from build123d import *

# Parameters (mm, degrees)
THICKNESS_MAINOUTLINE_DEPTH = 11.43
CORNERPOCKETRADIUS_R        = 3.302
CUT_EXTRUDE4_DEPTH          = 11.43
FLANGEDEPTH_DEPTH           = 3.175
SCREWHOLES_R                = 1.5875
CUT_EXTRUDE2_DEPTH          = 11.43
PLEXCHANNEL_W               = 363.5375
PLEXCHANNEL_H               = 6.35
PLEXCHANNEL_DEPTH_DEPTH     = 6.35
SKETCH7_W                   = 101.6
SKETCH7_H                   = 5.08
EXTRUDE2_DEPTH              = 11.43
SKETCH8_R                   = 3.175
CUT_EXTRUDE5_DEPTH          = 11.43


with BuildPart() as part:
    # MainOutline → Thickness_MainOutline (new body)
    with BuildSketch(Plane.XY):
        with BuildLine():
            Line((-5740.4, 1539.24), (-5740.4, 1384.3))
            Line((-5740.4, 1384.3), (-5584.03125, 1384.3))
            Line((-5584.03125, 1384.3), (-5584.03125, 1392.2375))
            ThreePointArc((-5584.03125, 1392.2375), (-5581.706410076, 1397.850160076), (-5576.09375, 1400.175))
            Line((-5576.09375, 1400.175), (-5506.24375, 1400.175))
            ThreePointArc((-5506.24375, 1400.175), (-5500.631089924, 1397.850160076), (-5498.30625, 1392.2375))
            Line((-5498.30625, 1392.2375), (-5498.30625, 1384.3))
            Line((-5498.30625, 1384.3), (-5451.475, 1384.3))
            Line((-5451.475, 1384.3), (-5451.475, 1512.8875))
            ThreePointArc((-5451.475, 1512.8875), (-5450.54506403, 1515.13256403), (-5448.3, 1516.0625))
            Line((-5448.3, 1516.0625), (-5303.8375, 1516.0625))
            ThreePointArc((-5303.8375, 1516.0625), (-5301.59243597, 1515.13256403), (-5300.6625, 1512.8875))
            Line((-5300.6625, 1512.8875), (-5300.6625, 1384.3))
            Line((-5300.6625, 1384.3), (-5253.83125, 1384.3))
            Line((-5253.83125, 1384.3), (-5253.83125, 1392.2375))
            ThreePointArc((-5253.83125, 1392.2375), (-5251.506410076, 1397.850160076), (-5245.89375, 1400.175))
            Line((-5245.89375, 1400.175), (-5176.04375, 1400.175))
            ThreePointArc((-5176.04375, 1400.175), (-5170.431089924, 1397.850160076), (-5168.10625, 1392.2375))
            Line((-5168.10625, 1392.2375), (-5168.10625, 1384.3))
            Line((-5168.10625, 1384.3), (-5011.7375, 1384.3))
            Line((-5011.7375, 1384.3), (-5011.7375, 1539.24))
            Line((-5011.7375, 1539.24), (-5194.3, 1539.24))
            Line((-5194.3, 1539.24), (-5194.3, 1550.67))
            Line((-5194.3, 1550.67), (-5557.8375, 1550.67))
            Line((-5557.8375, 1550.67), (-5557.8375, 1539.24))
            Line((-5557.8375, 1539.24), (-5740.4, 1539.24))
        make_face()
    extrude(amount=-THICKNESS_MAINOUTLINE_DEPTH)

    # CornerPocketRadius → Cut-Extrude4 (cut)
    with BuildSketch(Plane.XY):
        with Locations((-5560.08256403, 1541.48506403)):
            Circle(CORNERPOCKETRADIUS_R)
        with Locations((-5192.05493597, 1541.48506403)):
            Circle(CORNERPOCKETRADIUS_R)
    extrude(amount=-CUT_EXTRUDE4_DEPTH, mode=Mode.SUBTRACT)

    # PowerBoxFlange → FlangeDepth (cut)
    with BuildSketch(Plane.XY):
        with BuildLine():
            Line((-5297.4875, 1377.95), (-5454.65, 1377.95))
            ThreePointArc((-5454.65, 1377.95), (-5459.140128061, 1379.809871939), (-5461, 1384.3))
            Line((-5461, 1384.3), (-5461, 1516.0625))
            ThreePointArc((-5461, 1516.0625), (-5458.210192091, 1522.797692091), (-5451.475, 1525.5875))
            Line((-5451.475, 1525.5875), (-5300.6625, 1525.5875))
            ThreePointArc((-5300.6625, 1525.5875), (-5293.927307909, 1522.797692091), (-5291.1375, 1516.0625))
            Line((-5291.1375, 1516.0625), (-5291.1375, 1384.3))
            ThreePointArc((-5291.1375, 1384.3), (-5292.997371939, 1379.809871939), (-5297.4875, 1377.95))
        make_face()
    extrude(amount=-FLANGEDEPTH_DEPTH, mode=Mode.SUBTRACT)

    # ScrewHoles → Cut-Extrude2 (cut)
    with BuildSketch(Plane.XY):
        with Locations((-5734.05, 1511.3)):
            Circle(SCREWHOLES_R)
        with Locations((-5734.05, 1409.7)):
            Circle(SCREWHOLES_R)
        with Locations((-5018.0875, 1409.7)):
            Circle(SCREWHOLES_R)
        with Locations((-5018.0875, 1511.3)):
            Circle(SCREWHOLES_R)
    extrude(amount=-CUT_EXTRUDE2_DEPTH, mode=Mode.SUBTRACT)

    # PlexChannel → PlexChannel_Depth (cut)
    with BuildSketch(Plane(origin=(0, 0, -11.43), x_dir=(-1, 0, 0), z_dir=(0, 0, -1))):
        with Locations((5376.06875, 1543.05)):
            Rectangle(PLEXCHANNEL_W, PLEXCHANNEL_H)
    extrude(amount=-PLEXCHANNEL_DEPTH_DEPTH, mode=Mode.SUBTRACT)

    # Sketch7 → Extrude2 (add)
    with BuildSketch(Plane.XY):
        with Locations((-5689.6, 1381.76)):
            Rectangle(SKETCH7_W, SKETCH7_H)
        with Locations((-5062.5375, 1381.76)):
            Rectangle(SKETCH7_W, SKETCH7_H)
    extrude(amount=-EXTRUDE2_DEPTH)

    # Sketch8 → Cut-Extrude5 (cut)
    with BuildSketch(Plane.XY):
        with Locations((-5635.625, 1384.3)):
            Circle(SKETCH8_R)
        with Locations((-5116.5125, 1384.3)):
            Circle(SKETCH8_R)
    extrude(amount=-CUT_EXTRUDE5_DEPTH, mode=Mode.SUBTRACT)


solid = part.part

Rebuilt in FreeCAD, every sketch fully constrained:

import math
import FreeCAD as App
import Part
import Sketcher

V = App.Vector
Q = App.Units.Quantity

doc = App.newDocument("Part")
body = doc.addObject("PartDesign::Body", "Body")

sketch1 = body.newObject("Sketcher::SketchObject", "Sketch")
sketch1.AttachmentSupport = (doc.getObject("XY_Plane"), [""])
sketch1.MapMode = "FlatFace"
sketch1.addGeometry([
    Part.LineSegment(V(-5740.4, 1539.2, 0), V(-5740.4, 1384.3, 0)),
    Part.LineSegment(V(-5740.4, 1384.3, 0), V(-5584, 1384.3, 0)),
    Part.LineSegment(V(-5584, 1384.3, 0), V(-5584, 1392.2, 0)),
    Part.ArcOfCircle(Part.Circle(V(-5576.1, 1392.2, 0), V(0, 0, 1), 7.9), math.radians(90), math.radians(180)),
    Part.LineSegment(V(-5576.1, 1400.2, 0), V(-5506.2, 1400.2, 0)),
    Part.ArcOfCircle(Part.Circle(V(-5506.2, 1392.2, 0), V(0, 0, 1), 7.9), math.radians(0), math.radians(90)),
    Part.LineSegment(V(-5498.3, 1392.2, 0), V(-5498.3, 1384.3, 0)),
    Part.LineSegment(V(-5498.3, 1384.3, 0), V(-5451.5, 1384.3, 0)),
    Part.LineSegment(V(-5451.5, 1384.3, 0), V(-5451.5, 1512.9, 0)),
    Part.ArcOfCircle(Part.Circle(V(-5448.3, 1512.9, 0), V(0, 0, 1), 3.2), math.radians(90), math.radians(180)),
    Part.LineSegment(V(-5448.3, 1516.1, 0), V(-5303.8, 1516.1, 0)),
    Part.ArcOfCircle(Part.Circle(V(-5303.8, 1512.9, 0), V(0, 0, 1), 3.2), math.radians(0), math.radians(90)),
    Part.LineSegment(V(-5300.7, 1512.9, 0), V(-5300.7, 1384.3, 0)),
    Part.LineSegment(V(-5300.7, 1384.3, 0), V(-5253.8, 1384.3, 0)),
    Part.LineSegment(V(-5253.8, 1384.3, 0), V(-5253.8, 1392.2, 0)),
    Part.ArcOfCircle(Part.Circle(V(-5245.9, 1392.2, 0), V(0, 0, 1), 7.9), math.radians(90), math.radians(180)),
    Part.LineSegment(V(-5245.9, 1400.2, 0), V(-5176, 1400.2, 0)),
    Part.ArcOfCircle(Part.Circle(V(-5176, 1392.2, 0), V(0, 0, 1), 7.9), math.radians(0), math.radians(90)),
    Part.LineSegment(V(-5168.1, 1392.2, 0), V(-5168.1, 1384.3, 0)),
    Part.LineSegment(V(-5168.1, 1384.3, 0), V(-5011.7, 1384.3, 0)),
    Part.LineSegment(V(-5011.7, 1384.3, 0), V(-5011.7, 1539.2, 0)),
    Part.LineSegment(V(-5011.7, 1539.2, 0), V(-5194.3, 1539.2, 0)),
    Part.LineSegment(V(-5194.3, 1539.2, 0), V(-5194.3, 1550.7, 0)),
    Part.LineSegment(V(-5194.3, 1550.7, 0), V(-5557.8, 1550.7, 0)),
    Part.LineSegment(V(-5557.8, 1550.7, 0), V(-5557.8, 1539.2, 0)),
    Part.LineSegment(V(-5557.8, 1539.2, 0), V(-5740.4, 1539.2, 0)),
], False)
sketch1.addConstraint([
    Sketcher.Constraint("Coincident", 0, 2, 1, 1),
    Sketcher.Constraint("Coincident", 1, 2, 2, 1),
    Sketcher.Constraint("Tangent", 2, 2, 3, 2),
    Sketcher.Constraint("Tangent", 3, 1, 4, 1),
    Sketcher.Constraint("Tangent", 4, 2, 5, 2),
    Sketcher.Constraint("Tangent", 5, 1, 6, 1),
    Sketcher.Constraint("Coincident", 6, 2, 7, 1),
    Sketcher.Constraint("Coincident", 7, 2, 8, 1),
    Sketcher.Constraint("Tangent", 8, 2, 9, 2),
    Sketcher.Constraint("Tangent", 9, 1, 10, 1),
    Sketcher.Constraint("Tangent", 10, 2, 11, 2),
    Sketcher.Constraint("Tangent", 11, 1, 12, 1),
    Sketcher.Constraint("Coincident", 12, 2, 13, 1),
    Sketcher.Constraint("Coincident", 13, 2, 14, 1),
    Sketcher.Constraint("Tangent", 14, 2, 15, 2),
    Sketcher.Constraint("Tangent", 15, 1, 16, 1),
    Sketcher.Constraint("Tangent", 16, 2, 17, 2),
    Sketcher.Constraint("Tangent", 17, 1, 18, 1),
    Sketcher.Constraint("Coincident", 18, 2, 19, 1),
    Sketcher.Constraint("Coincident", 19, 2, 20, 1),
    Sketcher.Constraint("Coincident", 20, 2, 21, 1),
    Sketcher.Constraint("Coincident", 21, 2, 22, 1),
    Sketcher.Constraint("Coincident", 22, 2, 23, 1),
    Sketcher.Constraint("Coincident", 23, 2, 24, 1),
    Sketcher.Constraint("Coincident", 24, 2, 25, 1),
    Sketcher.Constraint("Coincident", 25, 2, 0, 1),
    Sketcher.Constraint("Vertical", 0),
    Sketcher.Constraint("Horizontal", 1),
    Sketcher.Constraint("Vertical", 2),
    Sketcher.Constraint("Horizontal", 4),
    Sketcher.Constraint("Vertical", 6),
    Sketcher.Constraint("Horizontal", 7),
    Sketcher.Constraint("Vertical", 8),
    Sketcher.Constraint("Horizontal", 10),
    Sketcher.Constraint("Vertical", 12),
    Sketcher.Constraint("Horizontal", 13),
    Sketcher.Constraint("Vertical", 14),
    Sketcher.Constraint("Horizontal", 16),
    Sketcher.Constraint("Vertical", 18),
    Sketcher.Constraint("Horizontal", 19),
    Sketcher.Constraint("Vertical", 20),
    Sketcher.Constraint("Horizontal", 21),
    Sketcher.Constraint("Vertical", 22),
    Sketcher.Constraint("Horizontal", 23),
    Sketcher.Constraint("Vertical", 24),
    Sketcher.Constraint("Horizontal", 25),
    Sketcher.Constraint("Equal", 3, 5),
    Sketcher.Constraint("Equal", 9, 11),
    Sketcher.Constraint("Equal", 5, 15),
    Sketcher.Constraint("Equal", 15, 17),
    Sketcher.Constraint("Horizontal", 5, 3, 15, 3),
    Sketcher.Constraint("Horizontal", 1, 2, 6, 2),
    Sketcher.Constraint("Horizontal", 7, 2, 12, 2),
    Sketcher.Constraint("Horizontal", 13, 2, 18, 2),
    Sketcher.Constraint("Horizontal", 21, 2, 24, 2),
    Sketcher.Constraint("Equal", 7, 13),
    Sketcher.Constraint("Equal", 4, 16),
    Sketcher.Constraint("Equal", 1, 19),
    Sketcher.Constraint("Equal", 21, 25),
    Sketcher.Constraint("DistanceY", 0, 2, 0, 1, Q("6.1 in")),
    Sketcher.Constraint("DistanceX", 0, 2, -1, 1, Q("226 in")),
    Sketcher.Constraint("Radius", 3, Q("0.3125 in")),
    Sketcher.Constraint("Radius", 9, Q("0.125 in")),
    Sketcher.Constraint("DistanceX", 3, 3, 15, 3, Q("13 in")),
    Sketcher.Constraint("DistanceX", 4, 1, 4, 2, Q("2.75 in")),
    Sketcher.Constraint("DistanceY", 22, 1, 22, 2, Q("0.45 in")),
    Sketcher.Constraint("DistanceX", 9, 3, -1, 1, Q("214.5 in")),
    Sketcher.Constraint("DistanceY", -1, 1, 0, 2, Q("54.5 in")),
    Sketcher.Constraint("DistanceX", 21, 2, -1, 1, Q("204.5 in")),
    Sketcher.Constraint("DistanceX", 1, 1, 1, 2, Q("6.15625 in")),
    Sketcher.Constraint("DistanceY", 2, 1, 2, 2, Q("0.3125 in")),
    Sketcher.Constraint("DistanceY", 8, 1, 8, 2, Q("5.0625 in")),
])
pad1 = body.newObject("PartDesign::Pad", "Pad")
pad1.Profile = sketch1
pad1.Length = Q("0.45 in")
pad1.Reversed = True

sketch2 = body.newObject("Sketcher::SketchObject", "Sketch001")
sketch2.AttachmentSupport = (doc.getObject("XY_Plane"), [""])
sketch2.MapMode = "FlatFace"
sketch2.addGeometry([
    Part.Circle(V(-5560.1, 1541.5, 0), V(0, 0, 1), 3.3),
    Part.Circle(V(-5192.1, 1541.5, 0), V(0, 0, 1), 3.3),
], False)
sketch2.addConstraint([
    Sketcher.Constraint("Equal", 0, 1),
    Sketcher.Constraint("Horizontal", 0, 3, 1, 3),
    Sketcher.Constraint("Diameter", 0, Q("0.26 in")),
    Sketcher.Constraint("DistanceX", 0, 3, 1, 3, 368.027628),
    Sketcher.Constraint("DistanceX", 0, 3, -1, 1, 5560.082564),
    Sketcher.Constraint("DistanceY", -1, 1, 0, 3, 1541.485064),
])
pocket1 = body.newObject("PartDesign::Pocket", "Pocket")
pocket1.Profile = sketch2
pocket1.Length = Q("0.45 in")

sketch3 = body.newObject("Sketcher::SketchObject", "Sketch002")
sketch3.AttachmentSupport = (doc.getObject("XY_Plane"), [""])
sketch3.MapMode = "FlatFace"
sketch3.addGeometry([
    Part.LineSegment(V(-5455, 1378, 0), V(-5297, 1378, 0)),
    Part.ArcOfCircle(Part.Circle(V(-5297, 1384, 0), V(0, 0, 1), 6), math.radians(-90), math.radians(0)),
    Part.LineSegment(V(-5291, 1384, 0), V(-5291, 1516, 0)),
    Part.ArcOfCircle(Part.Circle(V(-5301, 1516, 0), V(0, 0, 1), 10), math.radians(0), math.radians(90)),
    Part.LineSegment(V(-5301, 1526, 0), V(-5451, 1526, 0)),
    Part.ArcOfCircle(Part.Circle(V(-5451, 1516, 0), V(0, 0, 1), 10), math.radians(90), math.radians(180)),
    Part.LineSegment(V(-5461, 1516, 0), V(-5461, 1384, 0)),
    Part.ArcOfCircle(Part.Circle(V(-5455, 1384, 0), V(0, 0, 1), 6), math.radians(180), math.radians(270)),
], False)
sketch3.addConstraint([
    Sketcher.Constraint("Tangent", 0, 2, 1, 1),
    Sketcher.Constraint("Tangent", 1, 2, 2, 1),
    Sketcher.Constraint("Tangent", 2, 2, 3, 1),
    Sketcher.Constraint("Tangent", 3, 2, 4, 1),
    Sketcher.Constraint("Tangent", 4, 2, 5, 1),
    Sketcher.Constraint("Tangent", 5, 2, 6, 1),
    Sketcher.Constraint("Tangent", 6, 2, 7, 1),
    Sketcher.Constraint("Tangent", 7, 2, 0, 1),
    Sketcher.Constraint("Horizontal", 0),
    Sketcher.Constraint("Vertical", 2),
    Sketcher.Constraint("Horizontal", 4),
    Sketcher.Constraint("Vertical", 6),
    Sketcher.Constraint("Equal", 3, 5),
    Sketcher.Constraint("Equal", 1, 7),
    Sketcher.Constraint("Radius", 1, Q("0.25 in")),
    Sketcher.Constraint("DistanceX", 5, 2, -1, 1, Q("215 in")),
    Sketcher.Constraint("Radius", 3, Q("0.375 in")),
    Sketcher.Constraint("DistanceY", -1, 1, 1, 3, Q("54.5 in")),
    Sketcher.Constraint("DistanceX", 0, 1, 0, 2, Q("6.1875 in")),
    Sketcher.Constraint("DistanceY", 2, 1, 2, 2, Q("5.1875 in")),
])
pocket2 = body.newObject("PartDesign::Pocket", "Pocket001")
pocket2.Profile = sketch3
pocket2.Length = Q("0.125 in")

sketch4 = body.newObject("Sketcher::SketchObject", "Sketch003")
sketch4.AttachmentSupport = (doc.getObject("XY_Plane"), [""])
sketch4.MapMode = "FlatFace"
sketch4.addGeometry([
    Part.Circle(V(-5734.1, 1511.3, 0), V(0, 0, 1), 1.6),
    Part.Circle(V(-5734.1, 1409.7, 0), V(0, 0, 1), 1.6),
    Part.Circle(V(-5018.1, 1409.7, 0), V(0, 0, 1), 1.6),
    Part.Circle(V(-5018.1, 1511.3, 0), V(0, 0, 1), 1.6),
], False)
sketch4.addConstraint([
    Sketcher.Constraint("Equal", 0, 1),
    Sketcher.Constraint("Equal", 1, 2),
    Sketcher.Constraint("Equal", 2, 3),
    Sketcher.Constraint("Horizontal", 1, 3, 2, 3),
    Sketcher.Constraint("Horizontal", 0, 3, 3, 3),
    Sketcher.Constraint("Vertical", 0, 3, 1, 3),
    Sketcher.Constraint("Vertical", 2, 3, 3, 3),
    Sketcher.Constraint("Diameter", 0, Q("0.125 in")),
    Sketcher.Constraint("DistanceY", 1, 3, 0, 3, Q("4 in")),
    Sketcher.Constraint("DistanceY", -1, 1, 0, 3, Q("59.5 in")),
    Sketcher.Constraint("DistanceX", 0, 3, -1, 1, Q("225.75 in")),
    Sketcher.Constraint("DistanceX", 2, 3, -1, 1, Q("197.5625 in")),
])
pocket3 = body.newObject("PartDesign::Pocket", "Pocket002")
pocket3.Profile = sketch4
pocket3.Length = Q("0.45 in")

sketch5 = body.newObject("Sketcher::SketchObject", "Sketch004")
sketch5.AttachmentSupport = (doc.getObject("XY_Plane"), [""])
sketch5.MapMode = "FlatFace"
sketch5.AttachmentOffset = App.Placement(V(0, 0, -0.45 * 25.4), App.Rotation())
sketch5.addGeometry([
    Part.LineSegment(V(-5194, 1546, 0), V(-5194, 1540, 0)),
    Part.LineSegment(V(-5194, 1540, 0), V(-5558, 1540, 0)),
    Part.LineSegment(V(-5558, 1540, 0), V(-5558, 1546, 0)),
    Part.LineSegment(V(-5558, 1546, 0), V(-5194, 1546, 0)),
], False)
sketch5.addConstraint([
    Sketcher.Constraint("Coincident", 0, 2, 1, 1),
    Sketcher.Constraint("Coincident", 1, 2, 2, 1),
    Sketcher.Constraint("Coincident", 2, 2, 3, 1),
    Sketcher.Constraint("Coincident", 3, 2, 0, 1),
    Sketcher.Constraint("Vertical", 0),
    Sketcher.Constraint("Horizontal", 1),
    Sketcher.Constraint("Vertical", 2),
    Sketcher.Constraint("Horizontal", 3),
    Sketcher.Constraint("DistanceY", 0, 2, 0, 1, Q("0.25 in")),
    Sketcher.Constraint("DistanceX", 0, 2, -1, 1, Q("204.5 in")),
    Sketcher.Constraint("DistanceX", 1, 2, 1, 1, Q("14.3125 in")),
    Sketcher.Constraint("DistanceY", -1, 1, 0, 2, Q("60.625 in")),
])
pocket4 = body.newObject("PartDesign::Pocket", "Pocket003")
pocket4.Profile = sketch5
pocket4.Length = Q("0.25 in")
pocket4.Reversed = True

sketch6 = body.newObject("Sketcher::SketchObject", "Sketch005")
sketch6.AttachmentSupport = (doc.getObject("XY_Plane"), [""])
sketch6.MapMode = "FlatFace"
sketch6.addGeometry([
    Part.LineSegment(V(-5740, 1384, 0), V(-5740, 1379, 0)),
    Part.LineSegment(V(-5740, 1379, 0), V(-5639, 1379, 0)),
    Part.LineSegment(V(-5639, 1379, 0), V(-5639, 1384, 0)),
    Part.LineSegment(V(-5639, 1384, 0), V(-5740, 1384, 0)),
    Part.LineSegment(V(-5113, 1384, 0), V(-5113, 1379, 0)),
    Part.LineSegment(V(-5113, 1379, 0), V(-5012, 1379, 0)),
    Part.LineSegment(V(-5012, 1379, 0), V(-5012, 1384, 0)),
    Part.LineSegment(V(-5012, 1384, 0), V(-5113, 1384, 0)),
], False)
sketch6.addConstraint([
    Sketcher.Constraint("Coincident", 0, 2, 1, 1),
    Sketcher.Constraint("Coincident", 1, 2, 2, 1),
    Sketcher.Constraint("Coincident", 2, 2, 3, 1),
    Sketcher.Constraint("Coincident", 3, 2, 0, 1),
    Sketcher.Constraint("Coincident", 4, 2, 5, 1),
    Sketcher.Constraint("Coincident", 5, 2, 6, 1),
    Sketcher.Constraint("Coincident", 6, 2, 7, 1),
    Sketcher.Constraint("Coincident", 7, 2, 4, 1),
    Sketcher.Constraint("Vertical", 0),
    Sketcher.Constraint("Horizontal", 1),
    Sketcher.Constraint("Vertical", 2),
    Sketcher.Constraint("Horizontal", 3),
    Sketcher.Constraint("Vertical", 4),
    Sketcher.Constraint("Horizontal", 5),
    Sketcher.Constraint("Vertical", 6),
    Sketcher.Constraint("Horizontal", 7),
    Sketcher.Constraint("Horizontal", 1, 2, 4, 2),
    Sketcher.Constraint("Horizontal", 3, 2, 6, 2),
    Sketcher.Constraint("Equal", 3, 5),
    Sketcher.Constraint("DistanceX", 1, 1, 1, 2, Q("4 in")),
    Sketcher.Constraint("DistanceY", 0, 2, 0, 1, Q("0.2 in")),
    Sketcher.Constraint("DistanceX", 0, 2, -1, 1, Q("226 in")),
    Sketcher.Constraint("DistanceY", -1, 1, 0, 2, Q("54.3 in")),
    Sketcher.Constraint("DistanceX", 4, 2, -1, 1, Q("201.3125 in")),
])
pad2 = body.newObject("PartDesign::Pad", "Pad001")
pad2.Profile = sketch6
pad2.Length = Q("0.45 in")
pad2.Reversed = True

sketch7 = body.newObject("Sketcher::SketchObject", "Sketch006")
sketch7.AttachmentSupport = (doc.getObject("XY_Plane"), [""])
sketch7.MapMode = "FlatFace"
sketch7.addGeometry([
    Part.Circle(V(-5635.6, 1384.3, 0), V(0, 0, 1), 3.2),
    Part.Circle(V(-5116.5, 1384.3, 0), V(0, 0, 1), 3.2),
], False)
sketch7.addConstraint([
    Sketcher.Constraint("Equal", 0, 1),
    Sketcher.Constraint("Horizontal", 0, 3, 1, 3),
    Sketcher.Constraint("Diameter", 0, Q("0.25 in")),
    Sketcher.Constraint("DistanceY", -1, 1, 0, 3, Q("54.5 in")),
    Sketcher.Constraint("DistanceX", 0, 3, -1, 1, Q("221.875 in")),
    Sketcher.Constraint("DistanceX", 1, 3, -1, 1, Q("201.4375 in")),
])
pocket5 = body.newObject("PartDesign::Pocket", "Pocket004")
pocket5.Profile = sketch7
pocket5.Length = Q("0.45 in")

doc.recompute()
